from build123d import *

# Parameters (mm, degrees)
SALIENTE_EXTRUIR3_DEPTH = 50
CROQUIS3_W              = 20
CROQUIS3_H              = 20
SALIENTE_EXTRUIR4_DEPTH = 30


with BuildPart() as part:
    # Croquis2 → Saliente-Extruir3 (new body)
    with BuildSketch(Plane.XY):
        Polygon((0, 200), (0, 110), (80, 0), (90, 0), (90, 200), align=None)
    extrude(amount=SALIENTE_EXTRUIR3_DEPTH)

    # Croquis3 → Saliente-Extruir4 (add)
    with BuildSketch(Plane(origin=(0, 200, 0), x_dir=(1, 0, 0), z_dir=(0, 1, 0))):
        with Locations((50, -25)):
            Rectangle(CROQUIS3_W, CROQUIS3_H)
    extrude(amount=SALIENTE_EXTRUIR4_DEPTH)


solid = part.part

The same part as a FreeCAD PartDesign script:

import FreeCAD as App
import Part
import Sketcher
from FreeCAD import Vector


def add_polygon(sketch, points):
    """Adds a closed chain of lines whose ends are joined by coincident constraints."""
    first, n = sketch.GeometryCount, len(points)
    for a, b in zip(points, points[1:] + points[:1]):
        sketch.addGeometry(Part.LineSegment(App.Vector(*a, 0), App.Vector(*b, 0)), False)
    for i in range(n):
        sketch.addConstraint(Sketcher.Constraint("Coincident", first + i, 2, first + (i + 1) % n, 1))

doc = App.newDocument("Part")
body = doc.addObject("PartDesign::Body", "Body")

# Sketch on XY plane
sketch1 = body.newObject("Sketcher::SketchObject", "Sketch")
sketch1.AttachmentSupport = (doc.getObject("XY_Plane"), [""])
sketch1.MapMode = "FlatFace"
add_polygon(sketch1, [(0, 200), (0, 110), (80, 0), (90, 0), (90, 200)])  # lines 0-4
sketch1.addConstraint([
    Sketcher.Constraint("Vertical", 0),
    Sketcher.Constraint("Horizontal", 2),
    Sketcher.Constraint("Vertical", 3),
    Sketcher.Constraint("Horizontal", 4),
    Sketcher.Constraint("PointOnObject", 0, 2, -2),
    Sketcher.Constraint("PointOnObject", 1, 2, -1),
    Sketcher.Constraint("Equal", 4, 0),
    Sketcher.Constraint("DistanceX", 2, 1, 2, 2, 10.0),
    Sketcher.Constraint("DistanceX", 4, 2, 4, 1, 90.0),
    Sketcher.Constraint("DistanceY", 3, 1, 3, 2, 200.0),
])
pad1 = body.newObject("PartDesign::Pad", "Pad")
pad1.Profile = sketch1
pad1.Length = 50

# Sketch on XZ plane
sketch2 = body.newObject("Sketcher::SketchObject", "Sketch001")
sketch2.AttachmentSupport = (doc.getObject("XZ_Plane"), [""])
sketch2.MapMode = "FlatFace"
sketch2.AttachmentOffset = App.Placement(Vector(0, 0, -200), App.Rotation())
add_polygon(sketch2, [(40, 15), (40, 35), (60, 35), (60, 15)])  # lines 0-3
sketch2.addConstraint([
    Sketcher.Constraint("Vertical", 0),
    Sketcher.Constraint("Horizontal", 1),
    Sketcher.Constraint("Vertical", 2),
    Sketcher.Constraint("Horizontal", 3),
    Sketcher.Constraint("Equal", 3, 0),
    Sketcher.Constraint("DistanceX", 1, 1, 1, 2, 20.0),
    Sketcher.Constraint("DistanceX", -1, 1, 0, 2, 40.0),
    Sketcher.Constraint("DistanceY", -1, 1, 0, 2, 35.0),
])
pad2 = body.newObject("PartDesign::Pad", "Pad001")
pad2.Profile = sketch2
pad2.Length = 30
pad2.Reversed = True

doc.recompute()
